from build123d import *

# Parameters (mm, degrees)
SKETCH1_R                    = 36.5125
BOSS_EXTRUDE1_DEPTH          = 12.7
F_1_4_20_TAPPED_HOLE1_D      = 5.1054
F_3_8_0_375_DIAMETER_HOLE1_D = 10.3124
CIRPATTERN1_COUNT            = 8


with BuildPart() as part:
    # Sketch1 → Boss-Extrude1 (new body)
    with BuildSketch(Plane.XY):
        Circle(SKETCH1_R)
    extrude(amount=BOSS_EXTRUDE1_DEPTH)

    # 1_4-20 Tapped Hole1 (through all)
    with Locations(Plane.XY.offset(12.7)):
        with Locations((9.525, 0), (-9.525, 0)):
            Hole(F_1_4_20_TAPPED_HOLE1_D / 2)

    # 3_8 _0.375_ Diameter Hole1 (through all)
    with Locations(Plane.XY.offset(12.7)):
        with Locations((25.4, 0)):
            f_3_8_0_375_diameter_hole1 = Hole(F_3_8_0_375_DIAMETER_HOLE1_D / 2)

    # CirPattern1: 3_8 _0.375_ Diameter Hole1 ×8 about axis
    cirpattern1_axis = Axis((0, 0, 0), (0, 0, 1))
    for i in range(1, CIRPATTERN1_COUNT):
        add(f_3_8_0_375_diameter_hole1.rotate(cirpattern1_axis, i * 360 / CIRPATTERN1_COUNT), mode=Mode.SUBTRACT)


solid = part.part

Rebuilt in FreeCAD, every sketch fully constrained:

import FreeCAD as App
import Part
import Sketcher

V = App.Vector
Q = App.Units.Quantity

doc = App.newDocument("Part")
params = doc.addObject("Spreadsheet::Sheet", "Params")
for row, (alias, value) in enumerate([
    ("sketch1_diameter", "2.875 in"),
    ("pad1_length", "0.5 in"),
    ("sketch2_diameter", "0.201 in"),
    ("hole_diameter", "0.201 in"),
    ("sketch3_diameter", "0.406 in"),
    ("hole2_diameter", "0.406 in"),
], start=1):
    params.set(f"A{row}", alias)
    params.set(f"B{row}", "=" + value)
    params.setAlias(f"B{row}", alias)

body = doc.addObject("PartDesign::Body", "Body")

sketch1 = body.newObject("Sketcher::SketchObject", "Sketch")
sketch1.AttachmentSupport = (doc.getObject("XY_Plane"), [""])
sketch1.MapMode = "FlatFace"
sketch1.addGeometry(Part.Circle(V(0, 0, 0), V(0, 0, 1), 37), False)
sketch1.addConstraint(Sketcher.Constraint("Coincident", 0, 3, -1, 1))
sketch1.addConstraint(Sketcher.Constraint("Diameter", 0, Q("2.875 in")))
sketch1.setExpression("Constraints[1]", "Params.sketch1_diameter")
pad1 = body.newObject("PartDesign::Pad", "Pad")
pad1.Profile = sketch1
pad1.setExpression("Length", "Params.pad1_length")

sketch2 = body.newObject("Sketcher::SketchObject", "Sketch001")
sketch2.AttachmentSupport = (doc.getObject("XY_Plane"), [""])
sketch2.MapMode = "FlatFace"
sketch2.AttachmentOffset = App.Placement(V(0, 0, 0.5 * 25.4), App.Rotation())
sketch2.addGeometry(Part.Circle(V(9.5, 0, 0), V(0, 0, 1), 2.6), False)
sketch2.addGeometry(Part.Circle(V(-9.5, 0, 0), V(0, 0, 1), 2.6), False)
sketch2.addConstraint(Sketcher.Constraint("Equal", 0, 1))
sketch2.addConstraint(Sketcher.Constraint("Symmetric", 0, 3, 1, 3, -1, 1))
sketch2.addConstraint(Sketcher.Constraint("PointOnObject", 0, 3, -1))
sketch2.addConstraint(Sketcher.Constraint("Diameter", 0, Q("0.201 in")))
sketch2.addConstraint(Sketcher.Constraint("DistanceX", 1, 3, 0, 3, Q("0.75 in")))
sketch2.setExpression("Constraints[3]", "Params.sketch2_diameter")
doc.recompute()
hole = body.newObject("PartDesign::Hole", "Hole")
hole.Profile = sketch2
hole.ThreadType = "None"
hole.setExpression("Diameter", "Params.hole_diameter")
hole.DepthType = "ThroughAll"

sketch3 = body.newObject("Sketcher::SketchObject", "Sketch002")
sketch3.AttachmentSupport = (doc.getObject("XY_Plane"), [""])
sketch3.MapMode = "FlatFace"
sketch3.AttachmentOffset = App.Placement(V(0, 0, 0.5 * 25.4), App.Rotation())
sketch3.addGeometry(Part.Circle(V(25, 0, 0), V(0, 0, 1), 5), False)
sketch3.addConstraint(Sketcher.Constraint("PointOnObject", 0, 3, -1))
sketch3.addConstraint(Sketcher.Constraint("Diameter", 0, Q("0.406 in")))
sketch3.addConstraint(Sketcher.Constraint("DistanceX", -1, 1, 0, 3, Q("1 in")))
sketch3.setExpression("Constraints[1]", "Params.sketch3_diameter")
doc.recompute()
hole2 = body.newObject("PartDesign::Hole", "Hole001")
hole2.Profile = sketch3
hole2.ThreadType = "None"
hole2.setExpression("Diameter", "Params.hole2_diameter")
hole2.DepthType = "ThroughAll"
doc.recompute()

polarpattern = body.newObject("PartDesign::PolarPattern", "PolarPattern")
polarpattern.Originals = [hole2]
polarpattern.Axis = (doc.getObject("Z_Axis"), [""])
polarpattern.Angle = 360
polarpattern.Occurrences = 8
body.Tip = polarpattern

doc.recompute()
